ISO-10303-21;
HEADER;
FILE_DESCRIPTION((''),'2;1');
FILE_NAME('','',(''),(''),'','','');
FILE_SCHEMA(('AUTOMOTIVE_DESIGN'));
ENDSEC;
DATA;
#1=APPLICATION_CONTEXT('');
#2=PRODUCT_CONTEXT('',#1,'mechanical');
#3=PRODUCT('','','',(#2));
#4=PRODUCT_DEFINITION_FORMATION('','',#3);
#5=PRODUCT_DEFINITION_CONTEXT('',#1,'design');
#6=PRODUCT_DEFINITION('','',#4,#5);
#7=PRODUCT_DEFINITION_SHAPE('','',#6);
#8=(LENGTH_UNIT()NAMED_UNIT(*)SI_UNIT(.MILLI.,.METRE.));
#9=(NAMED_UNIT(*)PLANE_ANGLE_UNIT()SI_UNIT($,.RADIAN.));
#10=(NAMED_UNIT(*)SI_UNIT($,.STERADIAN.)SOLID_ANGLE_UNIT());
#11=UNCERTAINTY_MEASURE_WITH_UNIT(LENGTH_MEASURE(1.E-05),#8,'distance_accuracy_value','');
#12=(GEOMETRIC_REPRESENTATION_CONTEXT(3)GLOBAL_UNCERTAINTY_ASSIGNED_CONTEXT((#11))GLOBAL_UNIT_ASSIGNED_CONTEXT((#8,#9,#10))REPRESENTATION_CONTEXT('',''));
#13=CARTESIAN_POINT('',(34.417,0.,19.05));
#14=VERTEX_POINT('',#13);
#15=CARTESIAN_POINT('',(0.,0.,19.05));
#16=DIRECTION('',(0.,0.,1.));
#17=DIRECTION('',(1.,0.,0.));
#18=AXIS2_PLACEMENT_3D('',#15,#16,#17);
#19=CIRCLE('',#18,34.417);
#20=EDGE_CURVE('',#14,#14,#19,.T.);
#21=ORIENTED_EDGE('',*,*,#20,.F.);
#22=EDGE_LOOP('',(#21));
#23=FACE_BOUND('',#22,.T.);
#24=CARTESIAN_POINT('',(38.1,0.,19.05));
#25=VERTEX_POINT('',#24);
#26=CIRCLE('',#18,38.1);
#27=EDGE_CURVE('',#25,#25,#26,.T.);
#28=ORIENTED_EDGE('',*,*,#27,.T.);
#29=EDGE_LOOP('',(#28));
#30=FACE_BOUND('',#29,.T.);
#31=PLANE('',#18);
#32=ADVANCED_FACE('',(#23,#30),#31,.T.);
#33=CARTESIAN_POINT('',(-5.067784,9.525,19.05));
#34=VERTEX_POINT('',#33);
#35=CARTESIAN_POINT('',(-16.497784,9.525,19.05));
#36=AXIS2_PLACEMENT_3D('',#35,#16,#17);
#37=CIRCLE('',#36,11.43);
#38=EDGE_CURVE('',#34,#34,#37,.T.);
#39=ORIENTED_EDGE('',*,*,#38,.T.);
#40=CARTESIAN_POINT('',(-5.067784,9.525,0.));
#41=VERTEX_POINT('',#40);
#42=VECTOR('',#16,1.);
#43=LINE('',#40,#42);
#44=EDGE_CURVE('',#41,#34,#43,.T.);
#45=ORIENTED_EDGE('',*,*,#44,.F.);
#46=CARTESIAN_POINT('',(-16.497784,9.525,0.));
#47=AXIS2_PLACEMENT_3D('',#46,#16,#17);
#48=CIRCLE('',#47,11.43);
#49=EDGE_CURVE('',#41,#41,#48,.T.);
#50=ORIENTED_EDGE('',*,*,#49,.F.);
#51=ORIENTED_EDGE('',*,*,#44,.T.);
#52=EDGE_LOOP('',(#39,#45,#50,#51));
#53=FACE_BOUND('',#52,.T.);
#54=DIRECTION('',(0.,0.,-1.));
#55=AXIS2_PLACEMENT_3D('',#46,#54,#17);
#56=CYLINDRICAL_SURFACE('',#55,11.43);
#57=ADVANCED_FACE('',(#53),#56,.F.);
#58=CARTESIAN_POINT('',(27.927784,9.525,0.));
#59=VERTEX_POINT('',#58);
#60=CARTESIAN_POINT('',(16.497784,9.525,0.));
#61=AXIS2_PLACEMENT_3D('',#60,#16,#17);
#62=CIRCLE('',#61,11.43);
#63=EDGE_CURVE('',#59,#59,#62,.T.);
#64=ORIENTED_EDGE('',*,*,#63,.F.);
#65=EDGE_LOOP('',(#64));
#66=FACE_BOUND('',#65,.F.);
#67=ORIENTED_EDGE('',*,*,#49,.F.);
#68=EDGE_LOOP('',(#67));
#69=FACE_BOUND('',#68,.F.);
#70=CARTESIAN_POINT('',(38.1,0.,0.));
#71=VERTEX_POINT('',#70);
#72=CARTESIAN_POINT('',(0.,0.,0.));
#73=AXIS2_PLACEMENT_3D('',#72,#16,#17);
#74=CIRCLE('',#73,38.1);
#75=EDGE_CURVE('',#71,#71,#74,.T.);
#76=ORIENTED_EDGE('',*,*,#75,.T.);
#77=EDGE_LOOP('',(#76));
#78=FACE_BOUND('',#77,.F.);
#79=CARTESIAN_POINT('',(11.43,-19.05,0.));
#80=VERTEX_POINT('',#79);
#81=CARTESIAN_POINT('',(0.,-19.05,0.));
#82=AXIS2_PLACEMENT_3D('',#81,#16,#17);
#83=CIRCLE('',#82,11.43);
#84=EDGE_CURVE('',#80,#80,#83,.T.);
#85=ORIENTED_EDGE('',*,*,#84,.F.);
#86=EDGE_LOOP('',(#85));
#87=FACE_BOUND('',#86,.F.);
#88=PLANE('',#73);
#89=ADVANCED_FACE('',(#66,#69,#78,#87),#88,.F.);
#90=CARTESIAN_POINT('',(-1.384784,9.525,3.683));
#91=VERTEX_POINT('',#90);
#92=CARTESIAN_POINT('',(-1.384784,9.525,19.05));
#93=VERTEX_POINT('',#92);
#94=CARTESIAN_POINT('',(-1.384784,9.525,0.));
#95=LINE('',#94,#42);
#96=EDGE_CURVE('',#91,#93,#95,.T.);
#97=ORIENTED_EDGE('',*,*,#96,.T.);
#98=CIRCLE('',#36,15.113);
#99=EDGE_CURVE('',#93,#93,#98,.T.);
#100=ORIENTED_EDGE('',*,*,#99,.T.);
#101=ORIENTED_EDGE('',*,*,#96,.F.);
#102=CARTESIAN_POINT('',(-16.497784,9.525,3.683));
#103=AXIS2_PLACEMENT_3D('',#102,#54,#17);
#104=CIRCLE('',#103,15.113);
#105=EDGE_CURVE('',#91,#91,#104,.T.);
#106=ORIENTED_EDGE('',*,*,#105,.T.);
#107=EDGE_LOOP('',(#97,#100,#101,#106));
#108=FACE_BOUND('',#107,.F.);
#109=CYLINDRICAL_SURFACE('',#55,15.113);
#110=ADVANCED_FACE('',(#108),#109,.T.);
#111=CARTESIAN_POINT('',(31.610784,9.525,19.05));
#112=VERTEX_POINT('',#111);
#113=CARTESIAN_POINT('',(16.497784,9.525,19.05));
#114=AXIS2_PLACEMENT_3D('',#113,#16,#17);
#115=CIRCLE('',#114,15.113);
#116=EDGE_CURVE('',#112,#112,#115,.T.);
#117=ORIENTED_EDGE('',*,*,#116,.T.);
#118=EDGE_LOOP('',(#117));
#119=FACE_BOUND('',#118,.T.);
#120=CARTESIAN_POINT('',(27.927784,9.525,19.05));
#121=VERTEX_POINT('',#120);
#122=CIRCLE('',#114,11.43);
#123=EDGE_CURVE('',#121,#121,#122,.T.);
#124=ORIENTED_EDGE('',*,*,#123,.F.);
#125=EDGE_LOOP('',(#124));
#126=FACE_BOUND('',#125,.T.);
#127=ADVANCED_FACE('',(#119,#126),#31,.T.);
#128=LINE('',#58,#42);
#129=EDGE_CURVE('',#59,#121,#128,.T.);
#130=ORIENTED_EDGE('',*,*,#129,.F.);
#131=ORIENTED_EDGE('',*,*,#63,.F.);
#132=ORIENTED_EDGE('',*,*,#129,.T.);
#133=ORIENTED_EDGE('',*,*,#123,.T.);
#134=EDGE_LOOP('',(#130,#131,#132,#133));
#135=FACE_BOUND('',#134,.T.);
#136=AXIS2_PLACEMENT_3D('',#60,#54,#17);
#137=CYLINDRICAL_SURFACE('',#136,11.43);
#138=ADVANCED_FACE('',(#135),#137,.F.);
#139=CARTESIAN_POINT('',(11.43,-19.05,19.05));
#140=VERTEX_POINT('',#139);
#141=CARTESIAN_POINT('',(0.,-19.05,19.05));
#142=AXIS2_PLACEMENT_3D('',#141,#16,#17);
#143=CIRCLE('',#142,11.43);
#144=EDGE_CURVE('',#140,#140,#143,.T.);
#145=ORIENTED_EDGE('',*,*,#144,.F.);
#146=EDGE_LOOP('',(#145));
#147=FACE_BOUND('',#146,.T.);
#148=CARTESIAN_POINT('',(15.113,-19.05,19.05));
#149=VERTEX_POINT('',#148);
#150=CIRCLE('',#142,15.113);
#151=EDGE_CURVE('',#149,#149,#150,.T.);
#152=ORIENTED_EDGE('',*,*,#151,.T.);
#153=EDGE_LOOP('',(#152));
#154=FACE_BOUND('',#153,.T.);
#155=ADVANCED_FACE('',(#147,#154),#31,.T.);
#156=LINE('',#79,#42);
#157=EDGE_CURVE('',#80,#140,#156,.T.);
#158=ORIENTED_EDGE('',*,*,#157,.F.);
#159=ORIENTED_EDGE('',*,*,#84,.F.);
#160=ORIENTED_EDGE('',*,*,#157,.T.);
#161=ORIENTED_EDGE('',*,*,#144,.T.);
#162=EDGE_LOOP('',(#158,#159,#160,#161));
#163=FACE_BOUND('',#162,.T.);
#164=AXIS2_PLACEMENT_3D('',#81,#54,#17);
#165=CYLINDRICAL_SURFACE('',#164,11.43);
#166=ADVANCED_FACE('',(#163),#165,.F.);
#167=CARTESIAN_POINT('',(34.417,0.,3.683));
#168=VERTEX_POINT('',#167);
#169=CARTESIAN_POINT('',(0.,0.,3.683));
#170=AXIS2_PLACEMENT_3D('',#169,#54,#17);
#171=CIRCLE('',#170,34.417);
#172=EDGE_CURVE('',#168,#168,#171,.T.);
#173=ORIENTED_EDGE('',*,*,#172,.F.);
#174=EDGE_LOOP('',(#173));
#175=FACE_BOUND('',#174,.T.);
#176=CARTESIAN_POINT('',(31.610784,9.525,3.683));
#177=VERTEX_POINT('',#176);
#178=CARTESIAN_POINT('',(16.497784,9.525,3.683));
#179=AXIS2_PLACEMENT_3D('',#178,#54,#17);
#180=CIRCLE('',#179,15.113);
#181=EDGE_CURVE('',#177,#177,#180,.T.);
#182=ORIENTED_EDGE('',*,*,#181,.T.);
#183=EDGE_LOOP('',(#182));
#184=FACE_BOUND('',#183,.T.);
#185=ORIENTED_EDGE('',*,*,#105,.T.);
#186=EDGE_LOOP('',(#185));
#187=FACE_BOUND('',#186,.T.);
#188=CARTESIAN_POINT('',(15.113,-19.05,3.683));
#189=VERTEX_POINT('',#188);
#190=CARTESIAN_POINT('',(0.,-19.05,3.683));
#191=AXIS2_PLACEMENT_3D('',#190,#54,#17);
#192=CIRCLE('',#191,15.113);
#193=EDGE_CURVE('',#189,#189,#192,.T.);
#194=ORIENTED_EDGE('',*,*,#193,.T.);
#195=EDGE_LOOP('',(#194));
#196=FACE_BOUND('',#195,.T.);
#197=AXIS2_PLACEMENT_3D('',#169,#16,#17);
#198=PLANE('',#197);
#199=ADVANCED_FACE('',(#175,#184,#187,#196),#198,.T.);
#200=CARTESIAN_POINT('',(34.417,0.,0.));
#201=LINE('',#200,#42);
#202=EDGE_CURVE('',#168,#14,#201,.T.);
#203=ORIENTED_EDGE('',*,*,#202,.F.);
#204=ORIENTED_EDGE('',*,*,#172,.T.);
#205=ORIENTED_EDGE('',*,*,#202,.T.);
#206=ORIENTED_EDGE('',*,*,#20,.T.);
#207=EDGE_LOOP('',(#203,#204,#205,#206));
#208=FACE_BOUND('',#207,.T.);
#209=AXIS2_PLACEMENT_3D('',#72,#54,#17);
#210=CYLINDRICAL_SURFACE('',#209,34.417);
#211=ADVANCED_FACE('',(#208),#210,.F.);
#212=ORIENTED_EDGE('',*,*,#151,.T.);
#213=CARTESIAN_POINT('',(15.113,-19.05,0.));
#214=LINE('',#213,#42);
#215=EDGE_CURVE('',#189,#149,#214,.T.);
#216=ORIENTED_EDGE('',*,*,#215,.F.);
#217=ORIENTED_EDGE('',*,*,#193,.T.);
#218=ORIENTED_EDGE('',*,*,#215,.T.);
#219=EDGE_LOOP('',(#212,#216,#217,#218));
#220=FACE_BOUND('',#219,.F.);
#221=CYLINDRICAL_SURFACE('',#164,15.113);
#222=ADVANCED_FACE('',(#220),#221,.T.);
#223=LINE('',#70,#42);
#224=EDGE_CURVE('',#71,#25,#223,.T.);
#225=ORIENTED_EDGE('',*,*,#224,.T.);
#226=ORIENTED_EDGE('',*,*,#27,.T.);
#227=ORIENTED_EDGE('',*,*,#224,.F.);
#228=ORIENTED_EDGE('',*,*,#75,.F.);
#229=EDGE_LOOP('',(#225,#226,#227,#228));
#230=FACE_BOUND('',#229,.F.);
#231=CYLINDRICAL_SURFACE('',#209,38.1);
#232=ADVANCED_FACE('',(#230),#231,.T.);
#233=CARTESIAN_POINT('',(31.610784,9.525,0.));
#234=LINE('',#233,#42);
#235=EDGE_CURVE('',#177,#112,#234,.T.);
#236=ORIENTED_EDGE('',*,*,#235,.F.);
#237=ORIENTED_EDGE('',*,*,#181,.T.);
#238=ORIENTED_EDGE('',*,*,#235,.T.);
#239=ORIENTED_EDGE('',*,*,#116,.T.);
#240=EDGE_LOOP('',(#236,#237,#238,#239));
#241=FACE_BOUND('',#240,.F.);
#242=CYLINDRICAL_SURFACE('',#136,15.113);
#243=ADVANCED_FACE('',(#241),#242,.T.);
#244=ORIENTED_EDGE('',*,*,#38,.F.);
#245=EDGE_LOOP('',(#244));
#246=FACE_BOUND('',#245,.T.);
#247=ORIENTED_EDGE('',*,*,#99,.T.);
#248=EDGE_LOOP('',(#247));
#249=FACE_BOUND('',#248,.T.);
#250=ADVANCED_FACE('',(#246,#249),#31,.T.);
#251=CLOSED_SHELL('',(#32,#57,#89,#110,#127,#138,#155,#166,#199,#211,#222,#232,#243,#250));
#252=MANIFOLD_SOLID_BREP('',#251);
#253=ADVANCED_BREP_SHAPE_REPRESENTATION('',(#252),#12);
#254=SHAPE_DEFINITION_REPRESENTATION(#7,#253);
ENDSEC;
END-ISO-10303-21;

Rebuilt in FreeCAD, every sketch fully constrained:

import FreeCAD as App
import Part
import Sketcher
Q = App.Units.Quantity


def faces_at(feature, points):
    """Names of the faces that lie closest to the given points."""
    faces = feature.Shape.Faces
    near = lambda p: min(range(len(faces)), key=lambda i: faces[i].distToShape(Part.Vertex(*p))[0])
    return sorted({f"Face{near(p) + 1}" for p in points})

doc = App.newDocument("Part")
body = doc.addObject("PartDesign::Body", "Body")

# Sketch on XY plane
sketch1 = body.newObject("Sketcher::SketchObject", "Sketch")
sketch1.AttachmentSupport = (doc.getObject("XY_Plane"), [""])
sketch1.MapMode = "FlatFace"
sketch1.addGeometry(Part.Circle(App.Vector(0, 0, 0), App.Vector(0, 0, 1), 38), False)
sketch1.addGeometry(Part.Circle(App.Vector(0, -19, 0), App.Vector(0, 0, 1), 11), False)
sketch1.addGeometry(Part.Circle(App.Vector(-16, 10, 0), App.Vector(0, 0, 1), 11), False)
sketch1.addGeometry(Part.Circle(App.Vector(16, 10, 0), App.Vector(0, 0, 1), 11), False)
sketch1.addConstraint(Sketcher.Constraint("Coincident", 0, 3, -1, 1))
sketch1.addConstraint(Sketcher.Constraint("Equal", 1, 2))
sketch1.addConstraint(Sketcher.Constraint("Equal", 2, 3))
sketch1.addConstraint(Sketcher.Constraint("Symmetric", 2, 3, 3, 3, -2))
sketch1.addConstraint(Sketcher.Constraint("PointOnObject", 1, 3, -2))
sketch1.addConstraint(Sketcher.Constraint("Diameter", 0, Q("3 in")))
sketch1.addConstraint(Sketcher.Constraint("Diameter", 1, Q("0.9 in")))
sketch1.addConstraint(Sketcher.Constraint("DistanceY", 1, 3, -1, 1, Q("0.75 in")))
sketch1.addConstraint(Sketcher.Constraint("DistanceY", -1, 1, 2, 3, Q("0.375 in")))
sketch1.addConstraint(Sketcher.Constraint("DistanceX", 2, 3, -1, 1, Q("16.497784 mm")))
pad1 = body.newObject("PartDesign::Pad", "Pad")
pad1.Profile = sketch1
pad1.Length = Q("0.75 in")
doc.recompute()

thickness = body.newObject("PartDesign::Thickness", "Thickness")
thickness.Base = (pad1, faces_at(pad1, [(0, 0, 19.05)]))
thickness.Value = Q("0.145 in")
thickness.Reversed = True
thickness.Join = "Arc"

doc.recompute()
